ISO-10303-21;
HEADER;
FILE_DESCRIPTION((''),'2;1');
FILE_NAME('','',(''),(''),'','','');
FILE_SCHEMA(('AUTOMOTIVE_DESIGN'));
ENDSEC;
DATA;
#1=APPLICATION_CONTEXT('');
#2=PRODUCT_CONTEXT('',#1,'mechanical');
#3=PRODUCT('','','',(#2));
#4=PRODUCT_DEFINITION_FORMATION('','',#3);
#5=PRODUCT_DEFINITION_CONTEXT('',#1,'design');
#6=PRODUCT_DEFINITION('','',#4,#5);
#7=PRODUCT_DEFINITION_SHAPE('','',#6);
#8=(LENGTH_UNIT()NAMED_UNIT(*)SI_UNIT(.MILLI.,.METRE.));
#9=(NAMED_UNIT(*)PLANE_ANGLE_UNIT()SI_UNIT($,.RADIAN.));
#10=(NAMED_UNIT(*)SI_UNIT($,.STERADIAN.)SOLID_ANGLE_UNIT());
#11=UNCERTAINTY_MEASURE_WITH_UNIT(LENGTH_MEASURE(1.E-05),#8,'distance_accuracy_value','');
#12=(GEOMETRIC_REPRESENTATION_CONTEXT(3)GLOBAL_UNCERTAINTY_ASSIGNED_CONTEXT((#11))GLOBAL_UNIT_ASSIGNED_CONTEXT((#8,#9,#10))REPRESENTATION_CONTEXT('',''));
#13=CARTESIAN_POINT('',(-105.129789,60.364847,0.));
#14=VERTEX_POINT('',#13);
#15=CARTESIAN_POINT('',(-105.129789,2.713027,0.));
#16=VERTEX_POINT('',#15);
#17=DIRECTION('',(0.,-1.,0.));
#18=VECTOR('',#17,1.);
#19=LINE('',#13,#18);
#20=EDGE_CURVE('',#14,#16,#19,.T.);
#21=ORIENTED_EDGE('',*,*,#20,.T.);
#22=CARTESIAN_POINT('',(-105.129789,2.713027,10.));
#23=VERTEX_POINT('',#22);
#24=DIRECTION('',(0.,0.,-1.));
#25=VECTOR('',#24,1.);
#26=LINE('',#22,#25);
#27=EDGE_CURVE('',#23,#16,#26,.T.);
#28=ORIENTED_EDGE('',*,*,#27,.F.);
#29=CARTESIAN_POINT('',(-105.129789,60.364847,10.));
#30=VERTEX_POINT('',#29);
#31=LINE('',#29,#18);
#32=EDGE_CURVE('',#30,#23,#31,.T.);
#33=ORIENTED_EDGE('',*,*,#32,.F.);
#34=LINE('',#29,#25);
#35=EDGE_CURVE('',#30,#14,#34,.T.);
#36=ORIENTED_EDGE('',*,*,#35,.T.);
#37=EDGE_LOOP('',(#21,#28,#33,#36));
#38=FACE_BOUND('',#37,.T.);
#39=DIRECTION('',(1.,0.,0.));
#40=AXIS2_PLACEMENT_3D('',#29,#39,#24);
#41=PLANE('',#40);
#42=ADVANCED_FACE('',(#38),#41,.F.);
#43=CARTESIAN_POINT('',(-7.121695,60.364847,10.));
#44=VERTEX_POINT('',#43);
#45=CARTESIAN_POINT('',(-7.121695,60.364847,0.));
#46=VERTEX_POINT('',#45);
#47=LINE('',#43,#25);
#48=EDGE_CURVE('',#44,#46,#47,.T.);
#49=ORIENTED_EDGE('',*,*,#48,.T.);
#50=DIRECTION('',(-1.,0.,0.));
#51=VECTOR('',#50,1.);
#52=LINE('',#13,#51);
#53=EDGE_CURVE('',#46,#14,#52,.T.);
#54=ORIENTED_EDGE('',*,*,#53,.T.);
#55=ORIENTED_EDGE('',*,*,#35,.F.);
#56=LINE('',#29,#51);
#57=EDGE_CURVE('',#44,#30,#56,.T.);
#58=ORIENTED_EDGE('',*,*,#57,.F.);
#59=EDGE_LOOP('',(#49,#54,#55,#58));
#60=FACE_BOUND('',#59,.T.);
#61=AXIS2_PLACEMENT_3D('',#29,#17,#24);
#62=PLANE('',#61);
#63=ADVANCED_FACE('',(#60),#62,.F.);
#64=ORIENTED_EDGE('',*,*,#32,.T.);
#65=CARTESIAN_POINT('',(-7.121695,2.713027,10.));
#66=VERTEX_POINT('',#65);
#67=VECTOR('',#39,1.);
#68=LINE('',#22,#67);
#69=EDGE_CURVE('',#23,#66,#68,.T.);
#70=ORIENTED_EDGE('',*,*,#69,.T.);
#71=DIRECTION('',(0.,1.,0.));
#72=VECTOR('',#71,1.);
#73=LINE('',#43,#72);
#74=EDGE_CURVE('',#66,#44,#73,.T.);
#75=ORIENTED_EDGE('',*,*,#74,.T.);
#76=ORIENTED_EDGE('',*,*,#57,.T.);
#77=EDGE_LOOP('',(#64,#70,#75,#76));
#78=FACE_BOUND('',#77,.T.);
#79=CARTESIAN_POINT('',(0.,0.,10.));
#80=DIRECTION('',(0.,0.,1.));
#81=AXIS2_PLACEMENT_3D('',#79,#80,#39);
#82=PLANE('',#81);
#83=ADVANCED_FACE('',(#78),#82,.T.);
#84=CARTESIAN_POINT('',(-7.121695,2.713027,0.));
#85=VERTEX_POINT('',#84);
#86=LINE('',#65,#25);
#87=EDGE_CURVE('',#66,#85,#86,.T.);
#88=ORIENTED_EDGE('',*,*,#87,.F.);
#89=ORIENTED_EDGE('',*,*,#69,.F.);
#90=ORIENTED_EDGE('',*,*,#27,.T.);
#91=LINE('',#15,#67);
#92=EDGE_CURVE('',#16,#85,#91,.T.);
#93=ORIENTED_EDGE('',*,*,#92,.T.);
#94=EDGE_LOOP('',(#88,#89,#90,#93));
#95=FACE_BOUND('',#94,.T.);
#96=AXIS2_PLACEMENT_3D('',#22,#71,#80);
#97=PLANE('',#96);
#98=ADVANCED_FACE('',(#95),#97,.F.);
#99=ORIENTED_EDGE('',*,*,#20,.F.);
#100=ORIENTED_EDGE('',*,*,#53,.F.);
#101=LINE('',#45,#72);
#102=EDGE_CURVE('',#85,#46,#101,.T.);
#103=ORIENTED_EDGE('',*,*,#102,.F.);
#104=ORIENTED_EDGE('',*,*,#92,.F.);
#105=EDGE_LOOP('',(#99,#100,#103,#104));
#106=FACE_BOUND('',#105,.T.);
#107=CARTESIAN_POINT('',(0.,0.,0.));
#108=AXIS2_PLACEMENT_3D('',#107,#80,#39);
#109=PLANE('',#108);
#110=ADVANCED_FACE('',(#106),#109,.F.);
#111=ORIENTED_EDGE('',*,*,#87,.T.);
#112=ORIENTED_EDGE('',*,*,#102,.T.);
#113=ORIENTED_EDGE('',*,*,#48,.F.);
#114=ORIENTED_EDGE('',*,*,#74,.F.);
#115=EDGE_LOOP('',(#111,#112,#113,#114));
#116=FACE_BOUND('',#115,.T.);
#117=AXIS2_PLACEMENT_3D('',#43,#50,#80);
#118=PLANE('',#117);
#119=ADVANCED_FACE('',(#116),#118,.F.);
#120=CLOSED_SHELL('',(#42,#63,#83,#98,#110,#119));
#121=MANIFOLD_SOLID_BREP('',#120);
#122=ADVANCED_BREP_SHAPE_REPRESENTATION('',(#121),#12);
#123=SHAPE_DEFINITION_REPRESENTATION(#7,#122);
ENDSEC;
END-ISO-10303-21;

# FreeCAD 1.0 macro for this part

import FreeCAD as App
import Part
import Sketcher

V = App.Vector
Q = App.Units.Quantity

doc = App.newDocument("Part")
body = doc.addObject("PartDesign::Body", "Body")

sketch1 = body.newObject("Sketcher::SketchObject", "Sketch")
sketch1.AttachmentSupport = (doc.getObject("XY_Plane"), [""])
sketch1.MapMode = "FlatFace"
sketch1.addGeometry([
    Part.LineSegment(V(-105, 60, 0), V(-105, 3, 0)),
    Part.LineSegment(V(-105, 3, 0), V(-7, 3, 0)),
    Part.LineSegment(V(-7, 3, 0), V(-7, 60, 0)),
    Part.LineSegment(V(-7, 60, 0), V(-105, 60, 0)),
], False)
sketch1.addConstraint([
    Sketcher.Constraint("Coincident", 0, 2, 1, 1),
    Sketcher.Constraint("Coincident", 1, 2, 2, 1),
    Sketcher.Constraint("Coincident", 2, 2, 3, 1),
    Sketcher.Constraint("Coincident", 3, 2, 0, 1),
    Sketcher.Constraint("Vertical", 0),
    Sketcher.Constraint("Horizontal", 1),
    Sketcher.Constraint("Vertical", 2),
    Sketcher.Constraint("Horizontal", 3),
    Sketcher.Constraint("DistanceY", 0, 2, 0, 1, Q("57.65182 mm")),
    Sketcher.Constraint("DistanceX", 1, 1, 1, 2, Q("98.008094 mm")),
    Sketcher.Constraint("DistanceX", 0, 2, -1, 1, Q("105.129789 mm")),
    Sketcher.Constraint("DistanceY", -1, 1, 0, 2, Q("2.713027 mm")),
])
pad1 = body.newObject("PartDesign::Pad", "Pad")
pad1.Profile = sketch1
pad1.Length = 10

doc.recompute()
